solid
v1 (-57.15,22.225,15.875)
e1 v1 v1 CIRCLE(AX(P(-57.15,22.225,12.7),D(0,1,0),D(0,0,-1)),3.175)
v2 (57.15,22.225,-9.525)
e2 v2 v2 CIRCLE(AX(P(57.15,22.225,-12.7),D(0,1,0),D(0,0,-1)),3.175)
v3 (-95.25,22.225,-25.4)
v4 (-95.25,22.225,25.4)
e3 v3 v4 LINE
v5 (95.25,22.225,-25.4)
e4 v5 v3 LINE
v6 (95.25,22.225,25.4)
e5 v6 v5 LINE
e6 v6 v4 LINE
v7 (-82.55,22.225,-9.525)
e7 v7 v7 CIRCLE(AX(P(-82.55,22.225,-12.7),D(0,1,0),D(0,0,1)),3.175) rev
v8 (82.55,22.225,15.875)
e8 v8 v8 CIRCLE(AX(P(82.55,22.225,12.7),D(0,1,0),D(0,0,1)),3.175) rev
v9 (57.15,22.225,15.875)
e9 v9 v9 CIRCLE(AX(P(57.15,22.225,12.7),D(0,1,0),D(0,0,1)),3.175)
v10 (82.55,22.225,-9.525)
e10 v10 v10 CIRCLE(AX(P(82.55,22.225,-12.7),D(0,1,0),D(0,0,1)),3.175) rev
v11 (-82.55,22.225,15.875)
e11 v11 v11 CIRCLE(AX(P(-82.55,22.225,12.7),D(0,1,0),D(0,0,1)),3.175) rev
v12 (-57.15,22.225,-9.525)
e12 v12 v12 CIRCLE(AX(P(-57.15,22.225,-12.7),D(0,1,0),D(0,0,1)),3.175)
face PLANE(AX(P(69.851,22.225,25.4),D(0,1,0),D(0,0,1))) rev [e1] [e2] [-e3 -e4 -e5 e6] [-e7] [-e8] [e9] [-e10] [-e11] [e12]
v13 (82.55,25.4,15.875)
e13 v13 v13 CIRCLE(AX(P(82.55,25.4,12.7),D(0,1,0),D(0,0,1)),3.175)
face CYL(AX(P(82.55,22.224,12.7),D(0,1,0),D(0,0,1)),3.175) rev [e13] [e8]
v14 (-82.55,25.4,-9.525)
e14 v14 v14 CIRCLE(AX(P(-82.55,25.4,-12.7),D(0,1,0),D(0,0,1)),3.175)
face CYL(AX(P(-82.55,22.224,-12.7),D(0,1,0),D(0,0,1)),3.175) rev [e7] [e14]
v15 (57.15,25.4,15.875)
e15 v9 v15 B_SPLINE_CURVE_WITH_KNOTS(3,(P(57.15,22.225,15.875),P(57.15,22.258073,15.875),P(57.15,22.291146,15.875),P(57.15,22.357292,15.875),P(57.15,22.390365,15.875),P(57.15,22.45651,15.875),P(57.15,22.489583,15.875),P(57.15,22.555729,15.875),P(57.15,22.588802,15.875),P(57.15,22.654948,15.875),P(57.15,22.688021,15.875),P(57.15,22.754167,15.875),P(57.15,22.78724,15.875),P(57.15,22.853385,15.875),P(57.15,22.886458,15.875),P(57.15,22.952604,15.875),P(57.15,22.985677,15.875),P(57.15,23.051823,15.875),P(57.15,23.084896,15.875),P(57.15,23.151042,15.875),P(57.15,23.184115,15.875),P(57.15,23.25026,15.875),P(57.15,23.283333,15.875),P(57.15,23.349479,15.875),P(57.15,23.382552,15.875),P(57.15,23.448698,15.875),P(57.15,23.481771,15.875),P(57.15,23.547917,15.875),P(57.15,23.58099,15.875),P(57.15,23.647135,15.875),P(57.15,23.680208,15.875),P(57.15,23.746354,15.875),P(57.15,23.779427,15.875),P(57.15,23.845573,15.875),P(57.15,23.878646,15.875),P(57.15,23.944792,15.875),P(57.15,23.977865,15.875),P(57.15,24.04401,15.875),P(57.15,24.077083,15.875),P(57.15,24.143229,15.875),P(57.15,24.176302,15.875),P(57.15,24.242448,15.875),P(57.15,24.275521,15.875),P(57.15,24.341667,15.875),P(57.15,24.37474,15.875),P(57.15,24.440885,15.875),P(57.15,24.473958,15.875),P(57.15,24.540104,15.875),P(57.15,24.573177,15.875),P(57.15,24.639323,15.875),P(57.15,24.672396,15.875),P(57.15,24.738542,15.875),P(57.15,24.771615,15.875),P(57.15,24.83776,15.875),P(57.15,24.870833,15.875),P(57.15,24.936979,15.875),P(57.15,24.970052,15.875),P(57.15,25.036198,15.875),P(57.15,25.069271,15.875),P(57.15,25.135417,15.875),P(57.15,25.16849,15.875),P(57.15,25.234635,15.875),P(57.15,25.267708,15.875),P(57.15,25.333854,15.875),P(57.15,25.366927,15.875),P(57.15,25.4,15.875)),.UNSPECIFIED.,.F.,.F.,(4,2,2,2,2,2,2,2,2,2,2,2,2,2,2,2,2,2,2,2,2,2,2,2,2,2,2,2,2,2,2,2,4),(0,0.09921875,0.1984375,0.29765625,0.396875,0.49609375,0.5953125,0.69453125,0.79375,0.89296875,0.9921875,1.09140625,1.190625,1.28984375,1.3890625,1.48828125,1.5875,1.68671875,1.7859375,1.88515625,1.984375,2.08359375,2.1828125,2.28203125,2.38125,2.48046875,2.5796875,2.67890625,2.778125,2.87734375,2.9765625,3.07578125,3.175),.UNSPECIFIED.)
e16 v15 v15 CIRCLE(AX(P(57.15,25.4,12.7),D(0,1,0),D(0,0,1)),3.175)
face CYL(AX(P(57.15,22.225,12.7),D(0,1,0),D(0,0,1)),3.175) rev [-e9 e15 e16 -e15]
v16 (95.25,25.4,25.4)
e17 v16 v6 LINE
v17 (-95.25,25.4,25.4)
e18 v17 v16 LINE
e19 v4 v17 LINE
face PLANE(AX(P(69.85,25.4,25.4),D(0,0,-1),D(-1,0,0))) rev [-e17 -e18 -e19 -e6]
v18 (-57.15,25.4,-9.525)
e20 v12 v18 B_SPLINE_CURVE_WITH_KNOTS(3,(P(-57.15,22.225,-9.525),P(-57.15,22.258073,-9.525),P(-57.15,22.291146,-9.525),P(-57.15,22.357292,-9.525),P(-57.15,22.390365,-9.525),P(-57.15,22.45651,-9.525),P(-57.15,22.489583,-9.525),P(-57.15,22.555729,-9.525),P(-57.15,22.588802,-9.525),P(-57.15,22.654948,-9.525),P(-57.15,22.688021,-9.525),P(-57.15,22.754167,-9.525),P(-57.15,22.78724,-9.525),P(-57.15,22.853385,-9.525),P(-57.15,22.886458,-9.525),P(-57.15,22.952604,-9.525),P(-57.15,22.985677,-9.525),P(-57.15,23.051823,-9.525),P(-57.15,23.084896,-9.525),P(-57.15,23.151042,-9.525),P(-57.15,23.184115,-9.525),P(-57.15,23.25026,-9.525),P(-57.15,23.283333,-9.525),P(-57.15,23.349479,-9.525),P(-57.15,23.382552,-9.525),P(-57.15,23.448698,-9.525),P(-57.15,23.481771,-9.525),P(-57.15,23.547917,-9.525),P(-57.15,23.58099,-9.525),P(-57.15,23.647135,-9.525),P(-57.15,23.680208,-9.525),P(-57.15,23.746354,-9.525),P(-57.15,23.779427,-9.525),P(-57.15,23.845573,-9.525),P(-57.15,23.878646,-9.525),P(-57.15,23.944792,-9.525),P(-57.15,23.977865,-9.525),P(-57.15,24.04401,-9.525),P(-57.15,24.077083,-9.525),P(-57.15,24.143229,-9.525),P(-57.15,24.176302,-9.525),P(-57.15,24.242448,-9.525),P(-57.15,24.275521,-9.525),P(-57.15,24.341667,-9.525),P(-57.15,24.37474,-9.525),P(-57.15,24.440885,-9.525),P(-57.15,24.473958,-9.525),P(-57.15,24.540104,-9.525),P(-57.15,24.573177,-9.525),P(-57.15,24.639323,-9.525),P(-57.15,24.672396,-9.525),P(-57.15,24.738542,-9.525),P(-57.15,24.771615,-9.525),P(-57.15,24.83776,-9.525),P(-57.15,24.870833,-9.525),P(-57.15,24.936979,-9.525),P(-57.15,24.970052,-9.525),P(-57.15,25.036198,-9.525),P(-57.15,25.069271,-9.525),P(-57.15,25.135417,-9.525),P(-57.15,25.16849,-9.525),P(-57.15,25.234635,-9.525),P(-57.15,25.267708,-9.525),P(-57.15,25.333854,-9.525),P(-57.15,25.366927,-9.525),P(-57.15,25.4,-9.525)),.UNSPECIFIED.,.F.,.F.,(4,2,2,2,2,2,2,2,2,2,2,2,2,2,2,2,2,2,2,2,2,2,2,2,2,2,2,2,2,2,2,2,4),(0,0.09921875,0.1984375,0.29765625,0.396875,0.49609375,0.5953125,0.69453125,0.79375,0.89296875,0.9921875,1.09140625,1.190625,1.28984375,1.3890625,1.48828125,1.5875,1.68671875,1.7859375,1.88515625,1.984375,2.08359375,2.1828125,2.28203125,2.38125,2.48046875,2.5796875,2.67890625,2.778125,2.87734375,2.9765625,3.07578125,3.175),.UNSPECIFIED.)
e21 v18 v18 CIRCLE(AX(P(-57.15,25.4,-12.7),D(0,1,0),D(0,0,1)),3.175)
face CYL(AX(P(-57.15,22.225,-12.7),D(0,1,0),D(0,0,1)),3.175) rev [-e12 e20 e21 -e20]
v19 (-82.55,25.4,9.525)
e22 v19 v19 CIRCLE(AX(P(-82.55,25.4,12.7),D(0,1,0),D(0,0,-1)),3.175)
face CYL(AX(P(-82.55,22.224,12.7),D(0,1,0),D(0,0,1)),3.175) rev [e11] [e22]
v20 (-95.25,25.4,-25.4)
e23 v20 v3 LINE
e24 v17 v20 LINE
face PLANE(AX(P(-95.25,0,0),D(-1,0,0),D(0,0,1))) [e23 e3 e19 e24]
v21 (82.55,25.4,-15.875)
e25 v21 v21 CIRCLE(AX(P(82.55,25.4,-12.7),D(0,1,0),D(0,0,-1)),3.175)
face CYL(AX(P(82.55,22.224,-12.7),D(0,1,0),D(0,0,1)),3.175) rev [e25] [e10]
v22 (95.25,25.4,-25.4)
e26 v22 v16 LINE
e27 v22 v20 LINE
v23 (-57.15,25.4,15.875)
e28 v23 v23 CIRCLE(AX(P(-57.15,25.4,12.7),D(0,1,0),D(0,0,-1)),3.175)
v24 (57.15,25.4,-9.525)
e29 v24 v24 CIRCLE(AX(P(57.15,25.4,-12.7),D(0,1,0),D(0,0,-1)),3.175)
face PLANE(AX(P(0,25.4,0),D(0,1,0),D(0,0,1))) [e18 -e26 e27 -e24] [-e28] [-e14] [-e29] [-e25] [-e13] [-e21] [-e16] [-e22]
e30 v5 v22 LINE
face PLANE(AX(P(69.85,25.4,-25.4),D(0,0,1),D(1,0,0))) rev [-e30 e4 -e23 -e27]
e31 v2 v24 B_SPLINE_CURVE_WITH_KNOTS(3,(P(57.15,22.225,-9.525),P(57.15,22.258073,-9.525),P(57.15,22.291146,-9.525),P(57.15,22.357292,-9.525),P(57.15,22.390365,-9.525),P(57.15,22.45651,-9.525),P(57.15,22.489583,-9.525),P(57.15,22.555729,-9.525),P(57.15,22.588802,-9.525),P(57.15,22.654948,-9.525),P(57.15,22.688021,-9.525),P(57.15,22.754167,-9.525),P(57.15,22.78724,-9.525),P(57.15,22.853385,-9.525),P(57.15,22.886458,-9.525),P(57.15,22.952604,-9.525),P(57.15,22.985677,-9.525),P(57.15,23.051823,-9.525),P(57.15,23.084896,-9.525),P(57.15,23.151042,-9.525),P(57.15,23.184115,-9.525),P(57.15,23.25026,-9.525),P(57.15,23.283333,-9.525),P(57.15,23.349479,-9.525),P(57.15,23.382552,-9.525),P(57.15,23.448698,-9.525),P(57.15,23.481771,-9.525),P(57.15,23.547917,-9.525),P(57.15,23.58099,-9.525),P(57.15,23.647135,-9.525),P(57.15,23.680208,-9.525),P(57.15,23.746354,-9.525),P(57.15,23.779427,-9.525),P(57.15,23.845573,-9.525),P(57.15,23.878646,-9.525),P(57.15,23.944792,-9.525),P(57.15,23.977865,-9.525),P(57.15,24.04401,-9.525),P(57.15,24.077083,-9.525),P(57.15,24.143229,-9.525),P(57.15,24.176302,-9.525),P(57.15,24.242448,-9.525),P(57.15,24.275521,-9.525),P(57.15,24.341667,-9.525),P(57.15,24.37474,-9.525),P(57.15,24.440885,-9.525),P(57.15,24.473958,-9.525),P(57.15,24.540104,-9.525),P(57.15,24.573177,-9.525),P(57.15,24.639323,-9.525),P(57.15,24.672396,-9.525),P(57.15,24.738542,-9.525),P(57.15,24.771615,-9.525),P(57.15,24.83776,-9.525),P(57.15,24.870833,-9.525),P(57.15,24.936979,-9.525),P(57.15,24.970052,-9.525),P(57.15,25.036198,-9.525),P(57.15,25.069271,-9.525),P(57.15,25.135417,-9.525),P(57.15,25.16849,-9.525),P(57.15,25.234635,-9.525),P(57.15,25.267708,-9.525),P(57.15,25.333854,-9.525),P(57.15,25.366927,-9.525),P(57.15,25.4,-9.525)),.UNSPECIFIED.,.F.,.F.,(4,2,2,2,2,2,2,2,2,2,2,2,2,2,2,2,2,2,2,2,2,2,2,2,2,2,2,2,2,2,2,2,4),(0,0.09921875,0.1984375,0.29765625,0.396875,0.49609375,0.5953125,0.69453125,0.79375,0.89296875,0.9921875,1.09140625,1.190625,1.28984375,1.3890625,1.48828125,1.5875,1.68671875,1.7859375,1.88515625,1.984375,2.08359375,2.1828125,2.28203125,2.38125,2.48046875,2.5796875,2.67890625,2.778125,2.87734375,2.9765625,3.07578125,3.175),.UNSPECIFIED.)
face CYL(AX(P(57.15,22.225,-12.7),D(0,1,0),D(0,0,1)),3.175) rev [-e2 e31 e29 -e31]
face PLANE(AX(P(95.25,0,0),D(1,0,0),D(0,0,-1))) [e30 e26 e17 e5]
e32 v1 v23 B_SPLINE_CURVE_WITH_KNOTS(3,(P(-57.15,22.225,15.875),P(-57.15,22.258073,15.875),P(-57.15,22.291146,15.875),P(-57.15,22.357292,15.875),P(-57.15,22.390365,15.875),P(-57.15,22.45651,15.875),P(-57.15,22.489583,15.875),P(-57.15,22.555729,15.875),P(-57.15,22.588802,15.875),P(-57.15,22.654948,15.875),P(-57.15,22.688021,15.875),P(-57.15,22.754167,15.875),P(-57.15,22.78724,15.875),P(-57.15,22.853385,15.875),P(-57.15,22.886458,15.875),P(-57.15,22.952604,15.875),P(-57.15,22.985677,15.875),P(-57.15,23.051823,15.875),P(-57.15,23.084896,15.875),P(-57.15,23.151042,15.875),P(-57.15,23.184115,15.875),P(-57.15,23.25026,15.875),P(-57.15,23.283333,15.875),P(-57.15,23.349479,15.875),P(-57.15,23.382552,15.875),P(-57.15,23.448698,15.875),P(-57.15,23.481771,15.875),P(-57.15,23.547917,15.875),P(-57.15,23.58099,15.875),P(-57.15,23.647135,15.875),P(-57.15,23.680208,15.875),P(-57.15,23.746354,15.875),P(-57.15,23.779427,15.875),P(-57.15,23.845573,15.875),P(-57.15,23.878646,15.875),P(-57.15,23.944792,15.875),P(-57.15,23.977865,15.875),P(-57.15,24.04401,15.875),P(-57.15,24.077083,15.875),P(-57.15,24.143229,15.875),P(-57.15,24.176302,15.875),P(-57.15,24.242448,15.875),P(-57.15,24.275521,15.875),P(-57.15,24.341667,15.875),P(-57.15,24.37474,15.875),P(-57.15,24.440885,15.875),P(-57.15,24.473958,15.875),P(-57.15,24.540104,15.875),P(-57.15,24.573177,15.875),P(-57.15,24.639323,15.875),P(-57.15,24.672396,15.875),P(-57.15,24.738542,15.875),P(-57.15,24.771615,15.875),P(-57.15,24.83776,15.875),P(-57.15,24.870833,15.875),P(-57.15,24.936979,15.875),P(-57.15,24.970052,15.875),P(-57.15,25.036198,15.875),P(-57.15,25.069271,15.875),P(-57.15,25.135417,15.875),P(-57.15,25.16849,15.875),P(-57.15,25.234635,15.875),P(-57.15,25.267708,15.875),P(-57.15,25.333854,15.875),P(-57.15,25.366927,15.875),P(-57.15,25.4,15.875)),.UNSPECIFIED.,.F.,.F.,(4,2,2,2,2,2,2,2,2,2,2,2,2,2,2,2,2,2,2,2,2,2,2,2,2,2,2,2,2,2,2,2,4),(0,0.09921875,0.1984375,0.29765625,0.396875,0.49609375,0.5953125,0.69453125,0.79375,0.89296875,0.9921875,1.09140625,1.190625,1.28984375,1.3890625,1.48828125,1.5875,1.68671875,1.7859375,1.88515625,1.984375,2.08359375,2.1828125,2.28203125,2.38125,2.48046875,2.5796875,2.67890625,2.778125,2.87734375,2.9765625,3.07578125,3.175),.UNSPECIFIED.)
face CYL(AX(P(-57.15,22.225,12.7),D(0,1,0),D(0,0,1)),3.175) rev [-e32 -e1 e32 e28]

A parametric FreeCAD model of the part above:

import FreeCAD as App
import Part
import Sketcher

V = App.Vector
Q = App.Units.Quantity

doc = App.newDocument("Part")
body = doc.addObject("PartDesign::Body", "Body")

sketch1 = body.newObject("Sketcher::SketchObject", "Sketch")
sketch1.AttachmentSupport = (doc.getObject("XZ_Plane"), [""])
sketch1.MapMode = "FlatFace"
sketch1.addGeometry(Part.LineSegment(V(-70, -25, 0), V(-70, 25, 0)), False)
sketch1.addGeometry(Part.LineSegment(V(-70, 25, 0), V(70, 25, 0)), False)
sketch1.addGeometry(Part.LineSegment(V(70, 25, 0), V(70, -25, 0)), False)
sketch1.addGeometry(Part.LineSegment(V(70, -25, 0), V(-70, -25, 0)), False)
sketch1.addConstraint(Sketcher.Constraint("Coincident", 0, 2, 1, 1))
sketch1.addConstraint(Sketcher.Constraint("Coincident", 1, 2, 2, 1))
sketch1.addConstraint(Sketcher.Constraint("Coincident", 2, 2, 3, 1))
sketch1.addConstraint(Sketcher.Constraint("Coincident", 3, 2, 0, 1))
sketch1.addConstraint(Sketcher.Constraint("Vertical", 0))
sketch1.addConstraint(Sketcher.Constraint("Horizontal", 1))
sketch1.addConstraint(Sketcher.Constraint("Vertical", 2))
sketch1.addConstraint(Sketcher.Constraint("Horizontal", 3))
sketch1.addConstraint(Sketcher.Constraint("Symmetric", 0, 2, 2, 2, -1, 1))
sketch1.addConstraint(Sketcher.Constraint("DistanceY", 0, 1, 0, 2, Q("2 in")))
sketch1.addConstraint(Sketcher.Constraint("DistanceX", 1, 1, 1, 2, Q("5.5 in")))
pad1 = body.newObject("PartDesign::Pad", "Pad")
pad1.Profile = sketch1
pad1.Length = Q("1 in")
pad1.Reversed = True

sketch2 = body.newObject("Sketcher::SketchObject", "Sketch001")
sketch2.AttachmentSupport = (doc.getObject("YZ_Plane"), [""])
sketch2.MapMode = "FlatFace"
sketch2.AttachmentOffset = App.Placement(V(0, 0, -2.75 * 25.4), App.Rotation())
sketch2.addGeometry(Part.LineSegment(V(22, -25, 0), V(0, -25, 0)), False)
sketch2.addGeometry(Part.LineSegment(V(0, -25, 0), V(0, 25, 0)), False)
sketch2.addGeometry(Part.LineSegment(V(0, 25, 0), V(22, 25, 0)), False)
sketch2.addGeometry(Part.LineSegment(V(22, 25, 0), V(22, -25, 0)), False)
sketch2.addConstraint(Sketcher.Constraint("Coincident", 0, 2, 1, 1))
sketch2.addConstraint(Sketcher.Constraint("Coincident", 1, 2, 2, 1))
sketch2.addConstraint(Sketcher.Constraint("Coincident", 2, 2, 3, 1))
sketch2.addConstraint(Sketcher.Constraint("Coincident", 3, 2, 0, 1))
sketch2.addConstraint(Sketcher.Constraint("Horizontal", 0))
sketch2.addConstraint(Sketcher.Constraint("Vertical", 1))
sketch2.addConstraint(Sketcher.Constraint("Horizontal", 2))
sketch2.addConstraint(Sketcher.Constraint("Vertical", 3))
sketch2.addConstraint(Sketcher.Constraint("Symmetric", 0, 2, 1, 2, -1, 1))
sketch2.addConstraint(Sketcher.Constraint("DistanceY", 1, 1, 1, 2, Q("2 in")))
sketch2.addConstraint(Sketcher.Constraint("DistanceX", 0, 2, 0, 1, Q("0.875 in")))
pocket1 = body.newObject("PartDesign::Pocket", "Pocket")
pocket1.Profile = sketch2
pocket1.Type = "UpToFirst"
pocket1.Reversed = True

sketch3 = body.newObject("Sketcher::SketchObject", "Sketch002")
sketch3.AttachmentSupport = (doc.getObject("XZ_Plane"), [""])
sketch3.MapMode = "FlatFace"
sketch3.AttachmentOffset = App.Placement(V(0, 0, -1 * 25.4), App.Rotation())
sketch3.addGeometry(Part.Circle(V(-57.1, -12.7, 0), V(0, 0, 1), 3.2), False)
sketch3.addGeometry(Part.Circle(V(-57.1, 12.7, 0), V(0, 0, 1), 3.2), False)
sketch3.addGeometry(Part.Circle(V(57.1, 12.7, 0), V(0, 0, 1), 3.2), False)
sketch3.addGeometry(Part.Circle(V(57.1, -12.7, 0), V(0, 0, 1), 3.2), False)
sketch3.addConstraint(Sketcher.Constraint("Equal", 0, 1))
sketch3.addConstraint(Sketcher.Constraint("Equal", 1, 2))
sketch3.addConstraint(Sketcher.Constraint("Equal", 2, 3))
sketch3.addConstraint(Sketcher.Constraint("Symmetric", 0, 3, 2, 3, -1, 1))
sketch3.addConstraint(Sketcher.Constraint("Symmetric", 1, 3, 3, 3, -1, 1))
sketch3.addConstraint(Sketcher.Constraint("Symmetric", 1, 3, 2, 3, -2))
sketch3.addConstraint(Sketcher.Constraint("Diameter", 0, Q("0.25 in")))
sketch3.addConstraint(Sketcher.Constraint("DistanceY", 0, 3, 1, 3, Q("1 in")))
sketch3.addConstraint(Sketcher.Constraint("DistanceX", 1, 3, 2, 3, Q("4.5 in")))
pocket2 = body.newObject("PartDesign::Pocket", "Pocket001")
pocket2.Profile = sketch3
pocket2.Type = "ThroughAll"
pocket2.Reversed = True

sketch4 = body.newObject("Sketcher::SketchObject", "Sketch003")
sketch4.AttachmentSupport = (doc.getObject("YZ_Plane"), [""])
sketch4.MapMode = "FlatFace"
sketch4.AttachmentOffset = App.Placement(V(0, 0, -2.75 * 25.4), App.Rotation())
sketch4.addGeometry(Part.LineSegment(V(25.4, -25.4, 0), V(22.2, -25.4, 0)), False)
sketch4.addGeometry(Part.LineSegment(V(22.2, -25.4, 0), V(22.2, 25.4, 0)), False)
sketch4.addGeometry(Part.LineSegment(V(22.2, 25.4, 0), V(25.4, 25.4, 0)), False)
sketch4.addGeometry(Part.LineSegment(V(25.4, 25.4, 0), V(25.4, -25.4, 0)), False)
sketch4.addConstraint(Sketcher.Constraint("Coincident", 0, 2, 1, 1))
sketch4.addConstraint(Sketcher.Constraint("Coincident", 1, 2, 2, 1))
sketch4.addConstraint(Sketcher.Constraint("Coincident", 2, 2, 3, 1))
sketch4.addConstraint(Sketcher.Constraint("Coincident", 3, 2, 0, 1))
sketch4.addConstraint(Sketcher.Constraint("Horizontal", 0))
sketch4.addConstraint(Sketcher.Constraint("Vertical", 1))
sketch4.addConstraint(Sketcher.Constraint("Horizontal", 2))
sketch4.addConstraint(Sketcher.Constraint("Vertical", 3))
sketch4.addConstraint(Sketcher.Constraint("DistanceY", 1, 1, 1, 2, Q("2 in")))
sketch4.addConstraint(Sketcher.Constraint("DistanceY", 0, 2, -1, 1, Q("1 in")))
sketch4.addConstraint(Sketcher.Constraint("DistanceX", -1, 1, 2, 2, Q("1 in")))
sketch4.addConstraint(Sketcher.Constraint("DistanceX", 0, 2, 0, 1, Q("0.125 in")))
pad2 = body.newObject("PartDesign::Pad", "Pad001")
pad2.Profile = sketch4
pad2.Length = Q("1 in")
pad2.Reversed = True

sketch5 = body.newObject("Sketcher::SketchObject", "Sketch004")
sketch5.AttachmentSupport = (doc.getObject("YZ_Plane"), [""])
sketch5.MapMode = "FlatFace"
sketch5.AttachmentOffset = App.Placement(V(0, 0, 2.75 * 25.4), App.Rotation())
sketch5.addGeometry(Part.LineSegment(V(25.4, 25.4, 0), V(22.2, 25.4, 0)), False)
sketch5.addGeometry(Part.LineSegment(V(22.2, 25.4, 0), V(22.2, -25.4, 0)), False)
sketch5.addGeometry(Part.LineSegment(V(22.2, -25.4, 0), V(25.4, -25.4, 0)), False)
sketch5.addGeometry(Part.LineSegment(V(25.4, -25.4, 0), V(25.4, 25.4, 0)), False)
sketch5.addConstraint(Sketcher.Constraint("Coincident", 0, 2, 1, 1))
sketch5.addConstraint(Sketcher.Constraint("Coincident", 1, 2, 2, 1))
sketch5.addConstraint(Sketcher.Constraint("Coincident", 2, 2, 3, 1))
sketch5.addConstraint(Sketcher.Constraint("Coincident", 3, 2, 0, 1))
sketch5.addConstraint(Sketcher.Constraint("Horizontal", 0))
sketch5.addConstraint(Sketcher.Constraint("Vertical", 1))
sketch5.addConstraint(Sketcher.Constraint("Horizontal", 2))
sketch5.addConstraint(Sketcher.Constraint("Vertical", 3))
sketch5.addConstraint(Sketcher.Constraint("DistanceY", 1, 2, 1, 1, Q("2 in")))
sketch5.addConstraint(Sketcher.Constraint("DistanceY", -1, 1, 0, 2, Q("1 in")))
sketch5.addConstraint(Sketcher.Constraint("DistanceX", -1, 1, 2, 2, Q("1 in")))
sketch5.addConstraint(Sketcher.Constraint("DistanceX", 0, 2, 0, 1, Q("0.125 in")))
pad3 = body.newObject("PartDesign::Pad", "Pad002")
pad3.Profile = sketch5
pad3.Length = Q("1 in")

sketch6 = body.newObject("Sketcher::SketchObject", "Sketch005")
sketch6.AttachmentSupport = (doc.getObject("XZ_Plane"), [""])
sketch6.MapMode = "FlatFace"
sketch6.AttachmentOffset = App.Placement(V(0, 0, -1 * 25.4), App.Rotation())
sketch6.addGeometry(Part.Circle(V(-82.5, -12.7, 0), V(0, 0, 1), 3.2), False)
sketch6.addConstraint(Sketcher.Constraint("Diameter", 0, Q("0.25 in")))
sketch6.addConstraint(Sketcher.Constraint("DistanceY", 0, 3, -1, 1, Q("0.5 in")))
sketch6.addConstraint(Sketcher.Constraint("DistanceX", 0, 3, -1, 1, Q("3.25 in")))
pocket3 = body.newObject("PartDesign::Pocket", "Pocket002")
pocket3.Profile = sketch6
pocket3.Type = "UpToFirst"
pocket3.Reversed = True

sketch7 = body.newObject("Sketcher::SketchObject", "Sketch006")
sketch7.AttachmentSupport = (doc.getObject("XZ_Plane"), [""])
sketch7.MapMode = "FlatFace"
sketch7.AttachmentOffset = App.Placement(V(0, 0, -1 * 25.4), App.Rotation())
sketch7.addGeometry(Part.Circle(V(-82.5, 12.7, 0), V(0, 0, 1), 3.2), False)
sketch7.addConstraint(Sketcher.Constraint("Diameter", 0, Q("0.25 in")))
sketch7.addConstraint(Sketcher.Constraint("DistanceY", -1, 1, 0, 3, Q("0.5 in")))
sketch7.addConstraint(Sketcher.Constraint("DistanceX", 0, 3, -1, 1, Q("3.25 in")))
pocket4 = body.newObject("PartDesign::Pocket", "Pocket003")
pocket4.Profile = sketch7
pocket4.Type = "UpToFirst"
pocket4.Reversed = True

sketch8 = body.newObject("Sketcher::SketchObject", "Sketch007")
sketch8.AttachmentSupport = (doc.getObject("XZ_Plane"), [""])
sketch8.MapMode = "FlatFace"
sketch8.AttachmentOffset = App.Placement(V(0, 0, -1 * 25.4), App.Rotation())
sketch8.addGeometry(Part.Circle(V(82.5, 12.7, 0), V(0, 0, 1), 3.2), False)
sketch8.addConstraint(Sketcher.Constraint("Diameter", 0, Q("0.25 in")))
sketch8.addConstraint(Sketcher.Constraint("DistanceY", -1, 1, 0, 3, Q("0.5 in")))
sketch8.addConstraint(Sketcher.Constraint("DistanceX", -1, 1, 0, 3, Q("3.25 in")))
pocket5 = body.newObject("PartDesign::Pocket", "Pocket004")
pocket5.Profile = sketch8
pocket5.Type = "UpToFirst"
pocket5.Reversed = True

sketch9 = body.newObject("Sketcher::SketchObject", "Sketch008")
sketch9.AttachmentSupport = (doc.getObject("XZ_Plane"), [""])
sketch9.MapMode = "FlatFace"
sketch9.AttachmentOffset = App.Placement(V(0, 0, -1 * 25.4), App.Rotation())
sketch9.addGeometry(Part.Circle(V(82.5, -12.7, 0), V(0, 0, 1), 3.2), False)
sketch9.addConstraint(Sketcher.Constraint("Diameter", 0, Q("0.25 in")))
sketch9.addConstraint(Sketcher.Constraint("DistanceY", 0, 3, -1, 1, Q("0.5 in")))
sketch9.addConstraint(Sketcher.Constraint("DistanceX", -1, 1, 0, 3, Q("3.25 in")))
pocket6 = body.newObject("PartDesign::Pocket", "Pocket005")
pocket6.Profile = sketch9
pocket6.Type = "UpToFirst"
pocket6.Reversed = True

doc.recompute()
